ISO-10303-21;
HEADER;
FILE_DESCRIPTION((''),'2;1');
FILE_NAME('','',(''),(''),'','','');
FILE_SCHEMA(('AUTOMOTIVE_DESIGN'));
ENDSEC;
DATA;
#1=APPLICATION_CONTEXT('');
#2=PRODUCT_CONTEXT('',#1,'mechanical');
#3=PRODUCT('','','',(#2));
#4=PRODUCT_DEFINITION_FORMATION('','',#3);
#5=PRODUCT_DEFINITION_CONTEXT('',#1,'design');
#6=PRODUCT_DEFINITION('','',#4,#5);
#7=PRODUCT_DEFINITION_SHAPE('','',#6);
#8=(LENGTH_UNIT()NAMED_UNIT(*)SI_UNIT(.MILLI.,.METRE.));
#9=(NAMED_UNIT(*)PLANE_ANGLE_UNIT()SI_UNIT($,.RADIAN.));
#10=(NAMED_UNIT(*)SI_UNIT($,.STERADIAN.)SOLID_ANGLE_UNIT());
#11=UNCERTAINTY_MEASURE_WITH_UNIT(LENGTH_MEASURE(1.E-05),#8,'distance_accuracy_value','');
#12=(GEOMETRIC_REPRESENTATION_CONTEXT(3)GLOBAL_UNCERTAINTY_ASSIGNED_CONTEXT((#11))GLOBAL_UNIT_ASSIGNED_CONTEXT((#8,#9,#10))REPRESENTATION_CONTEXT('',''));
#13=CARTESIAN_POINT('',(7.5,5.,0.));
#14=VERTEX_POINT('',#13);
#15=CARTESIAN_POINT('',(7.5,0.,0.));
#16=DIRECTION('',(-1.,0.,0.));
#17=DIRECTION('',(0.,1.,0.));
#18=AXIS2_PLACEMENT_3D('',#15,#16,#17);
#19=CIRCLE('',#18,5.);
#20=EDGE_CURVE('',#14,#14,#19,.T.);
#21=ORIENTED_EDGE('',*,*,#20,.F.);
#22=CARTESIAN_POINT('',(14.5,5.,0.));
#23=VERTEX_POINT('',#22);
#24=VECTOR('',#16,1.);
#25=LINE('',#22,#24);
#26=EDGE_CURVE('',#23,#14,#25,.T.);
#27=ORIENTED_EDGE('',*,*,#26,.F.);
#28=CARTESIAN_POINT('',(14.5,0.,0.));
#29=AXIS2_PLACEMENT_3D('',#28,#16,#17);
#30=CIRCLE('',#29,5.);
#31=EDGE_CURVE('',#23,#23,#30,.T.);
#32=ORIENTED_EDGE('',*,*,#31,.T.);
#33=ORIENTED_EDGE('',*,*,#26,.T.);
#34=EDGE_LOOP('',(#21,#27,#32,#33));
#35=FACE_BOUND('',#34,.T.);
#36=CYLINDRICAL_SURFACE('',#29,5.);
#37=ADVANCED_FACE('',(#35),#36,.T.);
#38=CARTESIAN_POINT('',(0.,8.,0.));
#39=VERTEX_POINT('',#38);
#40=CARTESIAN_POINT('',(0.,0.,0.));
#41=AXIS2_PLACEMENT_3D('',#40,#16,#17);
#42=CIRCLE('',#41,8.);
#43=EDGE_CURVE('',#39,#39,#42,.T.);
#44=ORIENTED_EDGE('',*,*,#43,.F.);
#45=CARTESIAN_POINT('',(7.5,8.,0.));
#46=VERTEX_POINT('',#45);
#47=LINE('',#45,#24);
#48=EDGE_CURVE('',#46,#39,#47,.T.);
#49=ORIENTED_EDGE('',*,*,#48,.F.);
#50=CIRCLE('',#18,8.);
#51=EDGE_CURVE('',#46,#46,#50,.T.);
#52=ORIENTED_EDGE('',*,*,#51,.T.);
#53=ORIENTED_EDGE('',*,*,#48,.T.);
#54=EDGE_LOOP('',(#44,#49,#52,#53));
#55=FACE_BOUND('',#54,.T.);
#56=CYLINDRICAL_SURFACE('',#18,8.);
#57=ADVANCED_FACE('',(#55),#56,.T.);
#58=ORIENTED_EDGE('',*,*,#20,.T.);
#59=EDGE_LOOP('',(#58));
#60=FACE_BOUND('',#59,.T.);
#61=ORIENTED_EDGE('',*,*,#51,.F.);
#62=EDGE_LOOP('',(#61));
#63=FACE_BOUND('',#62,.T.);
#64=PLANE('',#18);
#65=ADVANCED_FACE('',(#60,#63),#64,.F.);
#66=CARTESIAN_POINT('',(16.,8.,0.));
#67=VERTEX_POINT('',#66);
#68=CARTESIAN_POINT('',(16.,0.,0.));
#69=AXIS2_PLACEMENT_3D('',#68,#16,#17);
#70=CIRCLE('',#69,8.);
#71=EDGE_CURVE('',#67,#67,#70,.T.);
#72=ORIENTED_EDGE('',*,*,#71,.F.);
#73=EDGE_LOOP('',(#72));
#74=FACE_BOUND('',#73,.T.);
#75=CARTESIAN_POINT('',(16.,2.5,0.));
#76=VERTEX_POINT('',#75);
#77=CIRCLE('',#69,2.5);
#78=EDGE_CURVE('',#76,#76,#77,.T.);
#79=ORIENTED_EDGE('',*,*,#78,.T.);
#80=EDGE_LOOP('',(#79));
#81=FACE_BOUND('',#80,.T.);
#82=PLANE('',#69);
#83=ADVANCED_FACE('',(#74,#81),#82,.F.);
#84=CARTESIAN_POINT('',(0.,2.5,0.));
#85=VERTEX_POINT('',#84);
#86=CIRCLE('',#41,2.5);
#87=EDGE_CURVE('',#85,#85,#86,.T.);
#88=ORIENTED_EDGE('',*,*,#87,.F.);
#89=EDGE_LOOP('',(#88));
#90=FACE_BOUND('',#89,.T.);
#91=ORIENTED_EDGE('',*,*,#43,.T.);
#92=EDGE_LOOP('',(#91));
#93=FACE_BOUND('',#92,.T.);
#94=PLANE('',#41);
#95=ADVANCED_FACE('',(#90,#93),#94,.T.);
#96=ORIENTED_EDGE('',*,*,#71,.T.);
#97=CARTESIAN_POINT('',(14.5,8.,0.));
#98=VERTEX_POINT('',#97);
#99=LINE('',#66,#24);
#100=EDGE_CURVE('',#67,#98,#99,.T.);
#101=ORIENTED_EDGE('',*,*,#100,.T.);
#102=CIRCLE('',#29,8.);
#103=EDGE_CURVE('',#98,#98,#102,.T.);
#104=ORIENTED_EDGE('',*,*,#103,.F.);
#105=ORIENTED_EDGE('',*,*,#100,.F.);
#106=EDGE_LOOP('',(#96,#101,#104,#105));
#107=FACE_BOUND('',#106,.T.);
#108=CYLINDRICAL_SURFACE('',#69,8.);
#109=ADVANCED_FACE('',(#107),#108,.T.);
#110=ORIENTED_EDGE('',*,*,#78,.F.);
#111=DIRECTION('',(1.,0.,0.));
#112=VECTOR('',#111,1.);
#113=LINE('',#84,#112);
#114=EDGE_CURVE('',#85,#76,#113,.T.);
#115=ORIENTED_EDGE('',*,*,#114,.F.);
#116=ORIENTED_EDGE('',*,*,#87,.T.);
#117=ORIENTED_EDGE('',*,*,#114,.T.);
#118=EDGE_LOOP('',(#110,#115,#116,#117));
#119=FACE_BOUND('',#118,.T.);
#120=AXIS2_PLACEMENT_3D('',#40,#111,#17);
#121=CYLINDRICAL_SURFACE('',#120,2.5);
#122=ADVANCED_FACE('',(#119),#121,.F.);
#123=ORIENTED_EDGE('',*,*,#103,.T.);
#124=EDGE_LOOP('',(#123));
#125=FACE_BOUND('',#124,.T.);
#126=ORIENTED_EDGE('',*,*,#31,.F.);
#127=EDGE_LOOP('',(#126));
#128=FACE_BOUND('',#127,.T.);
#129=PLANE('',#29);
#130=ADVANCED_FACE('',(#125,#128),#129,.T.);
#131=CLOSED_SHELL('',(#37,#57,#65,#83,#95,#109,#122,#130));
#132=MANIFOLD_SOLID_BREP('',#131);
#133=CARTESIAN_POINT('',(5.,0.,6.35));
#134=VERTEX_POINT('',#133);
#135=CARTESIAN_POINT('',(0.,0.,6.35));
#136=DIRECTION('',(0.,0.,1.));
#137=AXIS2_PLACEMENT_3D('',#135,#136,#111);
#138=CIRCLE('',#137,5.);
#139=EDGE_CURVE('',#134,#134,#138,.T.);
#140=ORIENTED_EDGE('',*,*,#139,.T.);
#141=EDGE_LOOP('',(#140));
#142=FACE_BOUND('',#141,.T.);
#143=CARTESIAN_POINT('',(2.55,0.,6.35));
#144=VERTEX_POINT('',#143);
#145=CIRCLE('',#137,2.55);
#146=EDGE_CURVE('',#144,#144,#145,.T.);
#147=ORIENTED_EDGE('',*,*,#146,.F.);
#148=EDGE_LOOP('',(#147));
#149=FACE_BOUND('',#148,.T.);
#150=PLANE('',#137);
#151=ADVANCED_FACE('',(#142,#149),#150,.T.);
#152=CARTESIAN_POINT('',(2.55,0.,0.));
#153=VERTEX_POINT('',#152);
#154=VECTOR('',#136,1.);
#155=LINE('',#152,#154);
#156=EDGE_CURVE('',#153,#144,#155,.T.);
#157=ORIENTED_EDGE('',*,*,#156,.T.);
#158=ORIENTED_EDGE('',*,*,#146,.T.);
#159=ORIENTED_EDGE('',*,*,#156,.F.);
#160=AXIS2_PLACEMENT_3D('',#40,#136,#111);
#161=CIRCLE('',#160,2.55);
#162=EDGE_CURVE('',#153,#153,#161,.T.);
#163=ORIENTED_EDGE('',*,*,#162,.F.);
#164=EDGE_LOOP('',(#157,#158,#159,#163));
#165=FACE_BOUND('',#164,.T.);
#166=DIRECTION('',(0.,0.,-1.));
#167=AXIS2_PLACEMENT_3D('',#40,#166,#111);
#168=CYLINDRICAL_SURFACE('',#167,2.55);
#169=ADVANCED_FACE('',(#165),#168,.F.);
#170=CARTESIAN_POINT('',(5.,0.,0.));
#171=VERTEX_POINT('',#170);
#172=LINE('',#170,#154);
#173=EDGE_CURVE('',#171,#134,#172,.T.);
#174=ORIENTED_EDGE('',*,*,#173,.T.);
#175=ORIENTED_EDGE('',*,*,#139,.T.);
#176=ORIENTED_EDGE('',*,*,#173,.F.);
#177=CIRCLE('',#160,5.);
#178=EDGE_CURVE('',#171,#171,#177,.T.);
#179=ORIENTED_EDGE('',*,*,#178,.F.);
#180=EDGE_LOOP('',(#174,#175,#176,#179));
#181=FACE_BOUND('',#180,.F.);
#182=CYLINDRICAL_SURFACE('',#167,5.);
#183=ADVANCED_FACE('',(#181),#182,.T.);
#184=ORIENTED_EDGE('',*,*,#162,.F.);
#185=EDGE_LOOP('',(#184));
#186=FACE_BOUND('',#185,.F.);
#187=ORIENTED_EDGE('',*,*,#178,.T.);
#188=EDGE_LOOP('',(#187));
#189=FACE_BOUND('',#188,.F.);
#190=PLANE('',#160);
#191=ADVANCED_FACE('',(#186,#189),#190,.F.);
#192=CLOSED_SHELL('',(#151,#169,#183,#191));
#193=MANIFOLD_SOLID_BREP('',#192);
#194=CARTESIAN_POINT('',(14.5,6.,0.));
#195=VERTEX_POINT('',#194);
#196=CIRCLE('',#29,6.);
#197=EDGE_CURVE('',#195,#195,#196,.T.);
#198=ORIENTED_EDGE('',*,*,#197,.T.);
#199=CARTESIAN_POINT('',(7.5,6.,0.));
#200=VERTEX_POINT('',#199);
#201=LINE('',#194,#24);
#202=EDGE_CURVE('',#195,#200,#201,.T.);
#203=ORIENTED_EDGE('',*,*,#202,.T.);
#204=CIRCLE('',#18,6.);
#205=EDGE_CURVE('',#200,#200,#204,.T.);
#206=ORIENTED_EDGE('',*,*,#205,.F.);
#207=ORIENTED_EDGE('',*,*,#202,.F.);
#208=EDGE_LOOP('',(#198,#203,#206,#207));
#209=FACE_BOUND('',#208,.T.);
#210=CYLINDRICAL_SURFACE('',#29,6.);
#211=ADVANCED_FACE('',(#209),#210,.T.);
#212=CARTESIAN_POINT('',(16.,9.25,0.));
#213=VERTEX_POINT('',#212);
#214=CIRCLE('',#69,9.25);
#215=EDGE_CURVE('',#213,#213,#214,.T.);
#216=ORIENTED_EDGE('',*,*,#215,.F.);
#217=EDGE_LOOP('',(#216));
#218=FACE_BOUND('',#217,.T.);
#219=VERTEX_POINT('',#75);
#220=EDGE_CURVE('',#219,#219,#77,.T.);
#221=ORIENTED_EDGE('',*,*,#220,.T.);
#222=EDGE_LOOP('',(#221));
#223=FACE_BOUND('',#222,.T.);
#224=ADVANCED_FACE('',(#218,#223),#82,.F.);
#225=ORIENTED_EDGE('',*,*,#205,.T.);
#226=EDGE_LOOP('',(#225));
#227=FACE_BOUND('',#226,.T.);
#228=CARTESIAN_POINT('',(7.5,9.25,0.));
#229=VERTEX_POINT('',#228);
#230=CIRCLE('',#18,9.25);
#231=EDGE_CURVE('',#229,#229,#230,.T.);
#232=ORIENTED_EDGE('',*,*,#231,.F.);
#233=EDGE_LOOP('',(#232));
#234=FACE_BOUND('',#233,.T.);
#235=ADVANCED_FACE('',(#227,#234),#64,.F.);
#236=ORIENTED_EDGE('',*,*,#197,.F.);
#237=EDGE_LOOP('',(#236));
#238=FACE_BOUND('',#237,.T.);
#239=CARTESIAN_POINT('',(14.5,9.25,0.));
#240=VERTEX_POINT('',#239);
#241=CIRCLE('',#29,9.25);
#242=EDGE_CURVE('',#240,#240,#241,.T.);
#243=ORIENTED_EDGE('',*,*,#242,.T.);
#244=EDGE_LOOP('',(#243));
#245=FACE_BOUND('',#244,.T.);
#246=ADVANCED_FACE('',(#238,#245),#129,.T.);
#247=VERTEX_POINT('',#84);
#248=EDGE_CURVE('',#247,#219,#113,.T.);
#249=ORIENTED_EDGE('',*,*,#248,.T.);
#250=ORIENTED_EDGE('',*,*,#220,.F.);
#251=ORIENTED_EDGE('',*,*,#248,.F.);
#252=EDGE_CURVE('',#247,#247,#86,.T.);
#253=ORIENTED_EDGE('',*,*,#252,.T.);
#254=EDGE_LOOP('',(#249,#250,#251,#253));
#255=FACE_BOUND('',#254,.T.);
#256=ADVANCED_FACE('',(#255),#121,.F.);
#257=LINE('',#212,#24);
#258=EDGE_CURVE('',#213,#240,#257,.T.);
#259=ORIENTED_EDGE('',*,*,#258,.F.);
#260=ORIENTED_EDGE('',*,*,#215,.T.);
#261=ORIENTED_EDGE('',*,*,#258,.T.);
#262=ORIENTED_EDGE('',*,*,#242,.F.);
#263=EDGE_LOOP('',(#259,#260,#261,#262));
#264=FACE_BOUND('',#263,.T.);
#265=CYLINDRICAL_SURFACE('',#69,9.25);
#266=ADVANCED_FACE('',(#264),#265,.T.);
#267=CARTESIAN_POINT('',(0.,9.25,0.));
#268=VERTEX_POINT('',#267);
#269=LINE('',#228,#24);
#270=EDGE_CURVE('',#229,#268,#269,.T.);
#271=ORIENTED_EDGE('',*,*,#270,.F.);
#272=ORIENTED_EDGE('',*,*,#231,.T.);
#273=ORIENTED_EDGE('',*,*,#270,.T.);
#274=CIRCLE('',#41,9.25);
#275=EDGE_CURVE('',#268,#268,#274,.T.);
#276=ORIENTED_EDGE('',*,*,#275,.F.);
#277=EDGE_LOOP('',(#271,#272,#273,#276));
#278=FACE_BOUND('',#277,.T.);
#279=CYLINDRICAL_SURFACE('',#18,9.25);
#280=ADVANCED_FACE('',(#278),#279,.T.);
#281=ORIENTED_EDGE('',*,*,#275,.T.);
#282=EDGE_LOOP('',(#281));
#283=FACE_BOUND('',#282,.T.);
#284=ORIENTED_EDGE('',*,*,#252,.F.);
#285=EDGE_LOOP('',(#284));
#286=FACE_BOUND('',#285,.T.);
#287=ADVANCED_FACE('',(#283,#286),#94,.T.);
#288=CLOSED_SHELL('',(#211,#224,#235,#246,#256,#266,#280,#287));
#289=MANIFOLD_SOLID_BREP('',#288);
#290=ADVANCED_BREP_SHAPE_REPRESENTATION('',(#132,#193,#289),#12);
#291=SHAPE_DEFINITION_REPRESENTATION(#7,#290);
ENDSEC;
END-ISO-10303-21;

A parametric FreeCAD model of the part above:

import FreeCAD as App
import Part
import Sketcher

V = App.Vector

doc = App.newDocument("Part")
body = doc.addObject("PartDesign::Body", "Body")

# Sketch on XY plane
sketch1 = body.newObject("Sketcher::SketchObject", "Sketch")
sketch1.AttachmentSupport = (doc.getObject("XY_Plane"), [""])
sketch1.MapMode = "FlatFace"
sketch1.addGeometry(Part.LineSegment(V(0, 8, 0), V(0, 2.5, 0)), False)
sketch1.addGeometry(Part.LineSegment(V(0, 2.5, 0), V(16, 2.5, 0)), False)
sketch1.addGeometry(Part.LineSegment(V(16, 2.5, 0), V(16, 8, 0)), False)
sketch1.addGeometry(Part.LineSegment(V(16, 8, 0), V(14.5, 8, 0)), False)
sketch1.addGeometry(Part.LineSegment(V(14.5, 8, 0), V(14.5, 5, 0)), False)
sketch1.addGeometry(Part.LineSegment(V(14.5, 5, 0), V(7.5, 5, 0)), False)
sketch1.addGeometry(Part.LineSegment(V(7.5, 5, 0), V(7.5, 8, 0)), False)
sketch1.addGeometry(Part.LineSegment(V(7.5, 8, 0), V(0, 8, 0)), False)
sketch1.addConstraint(Sketcher.Constraint("Coincident", 0, 2, 1, 1))
sketch1.addConstraint(Sketcher.Constraint("Coincident", 1, 2, 2, 1))
sketch1.addConstraint(Sketcher.Constraint("Coincident", 2, 2, 3, 1))
sketch1.addConstraint(Sketcher.Constraint("Coincident", 3, 2, 4, 1))
sketch1.addConstraint(Sketcher.Constraint("Coincident", 4, 2, 5, 1))
sketch1.addConstraint(Sketcher.Constraint("Coincident", 5, 2, 6, 1))
sketch1.addConstraint(Sketcher.Constraint("Coincident", 6, 2, 7, 1))
sketch1.addConstraint(Sketcher.Constraint("Coincident", 7, 2, 0, 1))
sketch1.addConstraint(Sketcher.Constraint("Vertical", 0))
sketch1.addConstraint(Sketcher.Constraint("Horizontal", 1))
sketch1.addConstraint(Sketcher.Constraint("Vertical", 2))
sketch1.addConstraint(Sketcher.Constraint("Horizontal", 3))
sketch1.addConstraint(Sketcher.Constraint("Vertical", 4))
sketch1.addConstraint(Sketcher.Constraint("Horizontal", 5))
sketch1.addConstraint(Sketcher.Constraint("Vertical", 6))
sketch1.addConstraint(Sketcher.Constraint("Horizontal", 7))
sketch1.addConstraint(Sketcher.Constraint("PointOnObject", 0, 2, -2))
sketch1.addConstraint(Sketcher.Constraint("Horizontal", 3, 2, 6, 2))
sketch1.addConstraint(Sketcher.Constraint("DistanceX", 1, 1, 1, 2, 16.0))
sketch1.addConstraint(Sketcher.Constraint("DistanceX", 5, 2, 5, 1, 7.0))
sketch1.addConstraint(Sketcher.Constraint("DistanceY", 4, 2, 4, 1, 3.0))
sketch1.addConstraint(Sketcher.Constraint("DistanceX", 3, 2, 3, 1, 1.5))
sketch1.addConstraint(Sketcher.Constraint("DistanceY", 0, 2, 0, 1, 5.5))
sketch1.addConstraint(Sketcher.Constraint("DistanceY", -1, 1, 2, 2, 8.0))
revolution = body.newObject("PartDesign::Revolution", "Revolution")
revolution.Profile = sketch1
revolution.ReferenceAxis = (sketch1, ["H_Axis"])
revolution.Angle = 360
body2 = doc.addObject("PartDesign::Body", "Body001")

# Sketch on XY plane
sketch2 = body2.newObject("Sketcher::SketchObject", "Sketch001")
sketch2.AttachmentSupport = (doc.getObject("XY_Plane001"), [""])
sketch2.MapMode = "FlatFace"
sketch2.addGeometry(Part.LineSegment(V(0, 9.2, 0), V(0, 2.5, 0)), False)
sketch2.addGeometry(Part.LineSegment(V(0, 2.5, 0), V(16, 2.5, 0)), False)
sketch2.addGeometry(Part.LineSegment(V(16, 2.5, 0), V(16, 9.2, 0)), False)
sketch2.addGeometry(Part.LineSegment(V(16, 9.2, 0), V(14.5, 9.2, 0)), False)
sketch2.addGeometry(Part.LineSegment(V(14.5, 9.2, 0), V(14.5, 6, 0)), False)
sketch2.addGeometry(Part.LineSegment(V(14.5, 6, 0), V(7.5, 6, 0)), False)
sketch2.addGeometry(Part.LineSegment(V(7.5, 6, 0), V(7.5, 9.2, 0)), False)
sketch2.addGeometry(Part.LineSegment(V(7.5, 9.2, 0), V(0, 9.2, 0)), False)
sketch2.addConstraint(Sketcher.Constraint("Coincident", 0, 2, 1, 1))
sketch2.addConstraint(Sketcher.Constraint("Coincident", 1, 2, 2, 1))
sketch2.addConstraint(Sketcher.Constraint("Coincident", 2, 2, 3, 1))
sketch2.addConstraint(Sketcher.Constraint("Coincident", 3, 2, 4, 1))
sketch2.addConstraint(Sketcher.Constraint("Coincident", 4, 2, 5, 1))
sketch2.addConstraint(Sketcher.Constraint("Coincident", 5, 2, 6, 1))
sketch2.addConstraint(Sketcher.Constraint("Coincident", 6, 2, 7, 1))
sketch2.addConstraint(Sketcher.Constraint("Coincident", 7, 2, 0, 1))
sketch2.addConstraint(Sketcher.Constraint("Vertical", 0))
sketch2.addConstraint(Sketcher.Constraint("Horizontal", 1))
sketch2.addConstraint(Sketcher.Constraint("Vertical", 2))
sketch2.addConstraint(Sketcher.Constraint("Horizontal", 3))
sketch2.addConstraint(Sketcher.Constraint("Vertical", 4))
sketch2.addConstraint(Sketcher.Constraint("Horizontal", 5))
sketch2.addConstraint(Sketcher.Constraint("Vertical", 6))
sketch2.addConstraint(Sketcher.Constraint("Horizontal", 7))
sketch2.addConstraint(Sketcher.Constraint("PointOnObject", 0, 2, -2))
sketch2.addConstraint(Sketcher.Constraint("Horizontal", 3, 2, 6, 2))
sketch2.addConstraint(Sketcher.Constraint("DistanceX", 1, 1, 1, 2, 16.0))
sketch2.addConstraint(Sketcher.Constraint("DistanceX", 5, 2, 5, 1, 7.0))
sketch2.addConstraint(Sketcher.Constraint("DistanceX", 3, 2, 3, 1, 1.5))
sketch2.addConstraint(Sketcher.Constraint("DistanceY", -1, 1, 4, 2, 6.0))
sketch2.addConstraint(Sketcher.Constraint("DistanceY", 0, 2, 0, 1, 6.75))
sketch2.addConstraint(Sketcher.Constraint("DistanceY", 4, 2, 4, 1, 3.25))
revolution2 = body2.newObject("PartDesign::Revolution", "Revolution001")
revolution2.Profile = sketch2
revolution2.ReferenceAxis = (sketch2, ["H_Axis"])
revolution2.Angle = 360
body3 = doc.addObject("PartDesign::Body", "Body002")

# Sketch on XY plane
sketch3 = body3.newObject("Sketcher::SketchObject", "Sketch002")
sketch3.AttachmentSupport = (doc.getObject("XY_Plane002"), [""])
sketch3.MapMode = "FlatFace"
sketch3.addGeometry(Part.Circle(V(0, 0, 0), V(0, 0, 1), 5), False)
sketch3.addGeometry(Part.Circle(V(0, 0, 0), V(0, 0, 1), 2.5), False)
sketch3.addConstraint(Sketcher.Constraint("Coincident", 0, 3, -1, 1))
sketch3.addConstraint(Sketcher.Constraint("Coincident", 1, 3, -1, 1))
sketch3.addConstraint(Sketcher.Constraint("Diameter", 0, 10.0))
sketch3.addConstraint(Sketcher.Constraint("Diameter", 1, 5.1))
pad1 = body3.newObject("PartDesign::Pad", "Pad")
pad1.Profile = sketch3
pad1.Length = 6.35

doc.recompute()
